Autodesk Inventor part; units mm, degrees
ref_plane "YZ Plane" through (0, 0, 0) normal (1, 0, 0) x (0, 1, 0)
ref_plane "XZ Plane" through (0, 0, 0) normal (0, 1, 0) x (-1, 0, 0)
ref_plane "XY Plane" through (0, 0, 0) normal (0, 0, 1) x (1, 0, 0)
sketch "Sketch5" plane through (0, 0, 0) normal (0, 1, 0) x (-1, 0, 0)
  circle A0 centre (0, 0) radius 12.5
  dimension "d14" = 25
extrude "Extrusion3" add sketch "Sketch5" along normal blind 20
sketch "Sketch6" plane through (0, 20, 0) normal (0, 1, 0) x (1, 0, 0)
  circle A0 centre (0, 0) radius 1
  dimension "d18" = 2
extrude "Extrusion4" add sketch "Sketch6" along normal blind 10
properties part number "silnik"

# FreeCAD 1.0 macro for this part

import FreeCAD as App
import Part
import Sketcher
from FreeCAD import Vector

doc = App.newDocument("Part")
body = doc.addObject("PartDesign::Body", "Body")

sketch1 = body.newObject("Sketcher::SketchObject", "Sketch")
sketch1.AttachmentSupport = (doc.getObject("XZ_Plane"), [""])
sketch1.MapMode = "FlatFace"
sketch1.addGeometry(Part.Circle(Vector(0, 0, 0), Vector(0, 0, 1), 12.5), False)
sketch1.addConstraint([
    Sketcher.Constraint("Coincident", 0, 3, -1, 1),
    Sketcher.Constraint("Diameter", 0, 25.0),
])
pad1 = body.newObject("PartDesign::Pad", "Pad")
pad1.Profile = sketch1
pad1.Length = 20
pad1.Reversed = True

sketch2 = body.newObject("Sketcher::SketchObject", "Sketch001")
sketch2.AttachmentSupport = (doc.getObject("XZ_Plane"), [""])
sketch2.MapMode = "FlatFace"
sketch2.AttachmentOffset = App.Placement(Vector(0, 0, -20), App.Rotation())
sketch2.addGeometry(Part.Circle(Vector(0, 0, 0), Vector(0, 0, 1), 1), False)
sketch2.addConstraint([
    Sketcher.Constraint("Coincident", 0, 3, -1, 1),
    Sketcher.Constraint("Diameter", 0, 2.0),
])
pad2 = body.newObject("PartDesign::Pad", "Pad001")
pad2.Profile = sketch2
pad2.Length = 10
pad2.Reversed = True

doc.recompute()
